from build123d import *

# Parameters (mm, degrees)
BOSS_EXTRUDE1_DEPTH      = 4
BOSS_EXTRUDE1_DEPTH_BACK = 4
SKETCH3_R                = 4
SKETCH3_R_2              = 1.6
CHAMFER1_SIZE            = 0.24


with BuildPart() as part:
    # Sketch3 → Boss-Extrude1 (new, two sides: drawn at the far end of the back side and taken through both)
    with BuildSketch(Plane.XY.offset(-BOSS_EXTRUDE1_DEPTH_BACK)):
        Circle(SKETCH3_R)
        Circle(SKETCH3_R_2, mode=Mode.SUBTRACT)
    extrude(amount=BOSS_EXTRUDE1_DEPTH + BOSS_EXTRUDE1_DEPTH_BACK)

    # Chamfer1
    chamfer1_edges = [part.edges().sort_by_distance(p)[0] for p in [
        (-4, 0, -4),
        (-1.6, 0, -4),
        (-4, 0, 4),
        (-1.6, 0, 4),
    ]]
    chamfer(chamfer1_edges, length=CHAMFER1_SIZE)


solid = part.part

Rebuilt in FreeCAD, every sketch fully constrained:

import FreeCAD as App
import Part
import Sketcher
Q = App.Units.Quantity


def edges_at(feature, points):
    """Names of the edges that pass closest to the given points."""
    edges = feature.Shape.Edges
    near = lambda p: min(range(len(edges)), key=lambda i: edges[i].distToShape(Part.Vertex(*p))[0])
    return sorted({f"Edge{near(p) + 1}" for p in points})

doc = App.newDocument("Part")
body = doc.addObject("PartDesign::Body", "Body")

# Sketch on XY plane
sketch1 = body.newObject("Sketcher::SketchObject", "Sketch")
sketch1.AttachmentSupport = (doc.getObject("XY_Plane"), [""])
sketch1.MapMode = "FlatFace"
sketch1.addGeometry(Part.Circle(App.Vector(0, 0, 0), App.Vector(0, 0, 1), 4), False)
sketch1.addGeometry(Part.Circle(App.Vector(0, 0, 0), App.Vector(0, 0, 1), 1.6), False)
sketch1.addConstraint(Sketcher.Constraint("Coincident", 0, 3, -1, 1))
sketch1.addConstraint(Sketcher.Constraint("Coincident", 1, 3, -1, 1))
sketch1.addConstraint(Sketcher.Constraint("Diameter", 0, Q("8 mm")))
sketch1.addConstraint(Sketcher.Constraint("Diameter", 1, Q("3.2 mm")))
pad1 = body.newObject("PartDesign::Pad", "Pad")
pad1.Profile = sketch1
pad1.Type = "TwoLengths"
pad1.Length = 4
pad1.Length2 = 4
doc.recompute()

chamfer = body.newObject("PartDesign::Chamfer", "Chamfer")
chamfer.Base = (pad1, edges_at(pad1, [
    (-4, 0, -4),
    (-1.6, 0, -4),
    (-4, 0, 4),
    (-1.6, 0, 4),
]))
chamfer.Size = 0.24

doc.recompute()
